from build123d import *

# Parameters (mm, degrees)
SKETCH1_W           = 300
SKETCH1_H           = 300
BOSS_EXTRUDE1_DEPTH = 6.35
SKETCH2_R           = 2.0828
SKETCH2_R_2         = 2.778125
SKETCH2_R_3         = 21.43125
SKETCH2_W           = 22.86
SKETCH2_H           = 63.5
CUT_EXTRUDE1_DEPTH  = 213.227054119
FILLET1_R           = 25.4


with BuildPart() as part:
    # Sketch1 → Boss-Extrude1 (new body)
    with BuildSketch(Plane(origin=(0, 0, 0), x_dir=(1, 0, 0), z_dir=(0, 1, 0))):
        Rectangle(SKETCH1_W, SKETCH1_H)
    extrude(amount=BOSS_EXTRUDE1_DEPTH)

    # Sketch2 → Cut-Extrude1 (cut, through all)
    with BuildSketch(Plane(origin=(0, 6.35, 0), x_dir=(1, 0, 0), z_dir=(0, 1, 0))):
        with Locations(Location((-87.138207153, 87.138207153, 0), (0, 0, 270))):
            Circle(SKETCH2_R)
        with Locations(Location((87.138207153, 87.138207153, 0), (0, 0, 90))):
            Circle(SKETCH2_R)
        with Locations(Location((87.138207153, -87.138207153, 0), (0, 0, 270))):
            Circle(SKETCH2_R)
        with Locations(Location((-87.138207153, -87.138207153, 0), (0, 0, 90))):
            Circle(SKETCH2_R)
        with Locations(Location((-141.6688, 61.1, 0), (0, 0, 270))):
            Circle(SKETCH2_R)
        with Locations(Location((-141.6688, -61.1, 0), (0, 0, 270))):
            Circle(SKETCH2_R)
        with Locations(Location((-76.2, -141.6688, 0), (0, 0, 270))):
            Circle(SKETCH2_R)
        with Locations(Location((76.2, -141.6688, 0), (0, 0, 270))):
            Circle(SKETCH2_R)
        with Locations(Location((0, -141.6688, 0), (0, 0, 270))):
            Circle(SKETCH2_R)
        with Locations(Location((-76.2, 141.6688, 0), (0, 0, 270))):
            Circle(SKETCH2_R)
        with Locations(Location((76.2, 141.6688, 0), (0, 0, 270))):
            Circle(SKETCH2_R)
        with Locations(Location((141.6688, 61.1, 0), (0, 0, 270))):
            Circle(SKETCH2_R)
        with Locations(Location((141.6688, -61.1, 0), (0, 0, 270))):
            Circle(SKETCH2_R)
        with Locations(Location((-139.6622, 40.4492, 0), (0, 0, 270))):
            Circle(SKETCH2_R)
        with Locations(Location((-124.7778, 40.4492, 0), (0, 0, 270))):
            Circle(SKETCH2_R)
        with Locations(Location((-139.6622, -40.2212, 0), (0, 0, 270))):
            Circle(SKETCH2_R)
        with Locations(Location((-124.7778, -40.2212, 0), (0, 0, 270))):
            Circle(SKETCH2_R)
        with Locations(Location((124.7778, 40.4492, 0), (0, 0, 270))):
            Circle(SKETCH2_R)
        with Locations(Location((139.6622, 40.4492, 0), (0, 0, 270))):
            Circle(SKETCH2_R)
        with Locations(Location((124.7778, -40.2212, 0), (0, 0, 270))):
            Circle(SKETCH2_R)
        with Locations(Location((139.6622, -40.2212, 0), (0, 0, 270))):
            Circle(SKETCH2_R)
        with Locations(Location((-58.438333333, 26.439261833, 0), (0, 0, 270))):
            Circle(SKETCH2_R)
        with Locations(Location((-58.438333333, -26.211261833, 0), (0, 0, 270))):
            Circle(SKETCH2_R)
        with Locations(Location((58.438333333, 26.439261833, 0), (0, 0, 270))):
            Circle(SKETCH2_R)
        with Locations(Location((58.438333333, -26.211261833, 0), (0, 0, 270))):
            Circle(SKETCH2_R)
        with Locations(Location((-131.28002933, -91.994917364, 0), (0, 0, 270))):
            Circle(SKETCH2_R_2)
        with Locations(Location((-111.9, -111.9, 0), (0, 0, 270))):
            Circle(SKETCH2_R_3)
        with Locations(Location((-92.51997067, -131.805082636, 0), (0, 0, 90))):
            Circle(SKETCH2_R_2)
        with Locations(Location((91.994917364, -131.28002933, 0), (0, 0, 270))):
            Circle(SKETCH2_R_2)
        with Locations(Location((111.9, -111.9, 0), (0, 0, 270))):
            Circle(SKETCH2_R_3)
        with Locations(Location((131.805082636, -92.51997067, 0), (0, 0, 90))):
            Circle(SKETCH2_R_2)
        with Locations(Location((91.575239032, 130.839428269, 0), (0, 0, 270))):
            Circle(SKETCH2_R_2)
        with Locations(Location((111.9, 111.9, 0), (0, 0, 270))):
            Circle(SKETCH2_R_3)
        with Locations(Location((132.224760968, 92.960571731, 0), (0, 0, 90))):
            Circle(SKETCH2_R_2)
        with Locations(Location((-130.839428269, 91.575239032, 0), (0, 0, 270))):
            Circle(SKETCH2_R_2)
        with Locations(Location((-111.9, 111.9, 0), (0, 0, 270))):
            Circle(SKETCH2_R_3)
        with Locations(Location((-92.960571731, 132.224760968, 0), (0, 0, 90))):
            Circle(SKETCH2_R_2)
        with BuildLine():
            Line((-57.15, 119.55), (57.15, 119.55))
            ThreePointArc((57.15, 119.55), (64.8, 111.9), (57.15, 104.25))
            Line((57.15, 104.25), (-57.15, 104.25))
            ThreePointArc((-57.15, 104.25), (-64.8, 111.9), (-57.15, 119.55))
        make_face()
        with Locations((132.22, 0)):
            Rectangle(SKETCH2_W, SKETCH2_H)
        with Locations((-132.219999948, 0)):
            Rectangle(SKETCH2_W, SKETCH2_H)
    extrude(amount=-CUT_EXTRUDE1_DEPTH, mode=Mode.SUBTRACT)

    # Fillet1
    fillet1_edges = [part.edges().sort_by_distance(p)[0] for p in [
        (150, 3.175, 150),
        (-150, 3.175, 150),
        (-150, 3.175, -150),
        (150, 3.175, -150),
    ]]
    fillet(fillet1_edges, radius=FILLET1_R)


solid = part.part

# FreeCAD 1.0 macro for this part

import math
import FreeCAD as App
import Part
import Sketcher

V = App.Vector
Q = App.Units.Quantity


def edges_at(feature, points):
    """Names of the edges that pass closest to the given points."""
    edges = feature.Shape.Edges
    near = lambda p: min(range(len(edges)), key=lambda i: edges[i].distToShape(Part.Vertex(*p))[0])
    return sorted({f"Edge{near(p) + 1}" for p in points})


def add_polygon(sketch, points):
    """Adds a closed chain of lines whose ends are joined by coincident constraints."""
    first, n = sketch.GeometryCount, len(points)
    for a, b in zip(points, points[1:] + points[:1]):
        sketch.addGeometry(Part.LineSegment(App.Vector(*a, 0), App.Vector(*b, 0)), False)
    for i in range(n):
        sketch.addConstraint(Sketcher.Constraint("Coincident", first + i, 2, first + (i + 1) % n, 1))

doc = App.newDocument("Part")
body = doc.addObject("PartDesign::Body", "Body")

# Sketch on XZ plane
sketch1 = doc.addObject("Sketcher::SketchObject", "Sketch")
body.addObject(sketch1)
sketch1.AttachmentSupport = (doc.XZ_Plane, [""])
sketch1.MapMode = "FlatFace"
add_polygon(sketch1, [(-150, -150), (-150, 150), (150, 150), (150, -150)])  # lines 0-3
sketch1.addConstraint([
    Sketcher.Constraint("Vertical", 0),
    Sketcher.Constraint("Horizontal", 1),
    Sketcher.Constraint("Vertical", 2),
    Sketcher.Constraint("Horizontal", 3),
    Sketcher.Constraint("Symmetric", 0, 2, 2, 2, -1, 1),
    Sketcher.Constraint("Equal", 3, 0),
    Sketcher.Constraint("DistanceX", 1, 1, 1, 2, Q("300 mm")),
])
pad1 = doc.addObject("PartDesign::Pad", "Pad")
body.addObject(pad1)
pad1.Profile = sketch1
pad1.Length = Q("0.25 in")
pad1.Reversed = True

# Sketch on XZ plane
sketch2 = doc.addObject("Sketcher::SketchObject", "Sketch001")
body.addObject(sketch2)
sketch2.AttachmentSupport = (doc.XZ_Plane, [""])
sketch2.MapMode = "FlatFace"
sketch2.AttachmentOffset = App.Placement(V(0, 0, -0.25 * 25.4), App.Rotation())
sketch2.addGeometry(Part.Circle(V(-87.1, -87.1, 0), V(0, 0, 1), 2.1), False)  # 0
sketch2.addGeometry(Part.Circle(V(87.1, -87.1, 0), V(0, 0, 1), 2.1), False)  # 1
sketch2.addGeometry(Part.Circle(V(87.1, 87.1, 0), V(0, 0, 1), 2.1), False)  # 2
sketch2.addGeometry(Part.Circle(V(-87.1, 87.1, 0), V(0, 0, 1), 2.1), False)  # 3
sketch2.addGeometry(Part.Circle(V(-141.7, -61.1, 0), V(0, 0, 1), 2.1), False)  # 4
sketch2.addGeometry(Part.Circle(V(-141.7, 61.1, 0), V(0, 0, 1), 2.1), False)  # 5
sketch2.addGeometry(Part.Circle(V(-76.2, 141.7, 0), V(0, 0, 1), 2.1), False)  # 6
sketch2.addGeometry(Part.Circle(V(76.2, 141.7, 0), V(0, 0, 1), 2.1), False)  # 7
sketch2.addGeometry(Part.Circle(V(0, 141.7, 0), V(0, 0, 1), 2.1), False)  # 8
sketch2.addGeometry(Part.Circle(V(-76.2, -141.7, 0), V(0, 0, 1), 2.1), False)  # 9
sketch2.addGeometry(Part.Circle(V(76.2, -141.7, 0), V(0, 0, 1), 2.1), False)  # 10
sketch2.addGeometry(Part.Circle(V(141.7, -61.1, 0), V(0, 0, 1), 2.1), False)  # 11
sketch2.addGeometry(Part.Circle(V(141.7, 61.1, 0), V(0, 0, 1), 2.1), False)  # 12
sketch2.addGeometry(Part.Circle(V(-139.7, -40.4, 0), V(0, 0, 1), 2.1), False)  # 13
sketch2.addGeometry(Part.Circle(V(-124.8, -40.4, 0), V(0, 0, 1), 2.1), False)  # 14
sketch2.addGeometry(Part.Circle(V(-139.7, 40.2, 0), V(0, 0, 1), 2.1), False)  # 15
sketch2.addGeometry(Part.Circle(V(-124.8, 40.2, 0), V(0, 0, 1), 2.1), False)  # 16
sketch2.addGeometry(Part.Circle(V(124.8, -40.4, 0), V(0, 0, 1), 2.1), False)  # 17
sketch2.addGeometry(Part.Circle(V(139.7, -40.4, 0), V(0, 0, 1), 2.1), False)  # 18
sketch2.addGeometry(Part.Circle(V(124.8, 40.2, 0), V(0, 0, 1), 2.1), False)  # 19
sketch2.addGeometry(Part.Circle(V(139.7, 40.2, 0), V(0, 0, 1), 2.1), False)  # 20
sketch2.addGeometry(Part.Circle(V(-58.4, -26.4, 0), V(0, 0, 1), 2.1), False)  # 21
sketch2.addGeometry(Part.Circle(V(-58.4, 26.2, 0), V(0, 0, 1), 2.1), False)  # 22
sketch2.addGeometry(Part.Circle(V(58.4, -26.4, 0), V(0, 0, 1), 2.1), False)  # 23
sketch2.addGeometry(Part.Circle(V(58.4, 26.2, 0), V(0, 0, 1), 2.1), False)  # 24
sketch2.addGeometry(Part.Circle(V(-131.3, 92, 0), V(0, 0, 1), 2.8), False)  # 25
sketch2.addGeometry(Part.Circle(V(-111.9, 111.9, 0), V(0, 0, 1), 21.4), False)  # 26
sketch2.addGeometry(Part.Circle(V(-92.5, 131.8, 0), V(0, 0, 1), 2.8), False)  # 27
sketch2.addGeometry(Part.Circle(V(92, 131.3, 0), V(0, 0, 1), 2.8), False)  # 28
sketch2.addGeometry(Part.Circle(V(111.9, 111.9, 0), V(0, 0, 1), 21.4), False)  # 29
sketch2.addGeometry(Part.Circle(V(131.8, 92.5, 0), V(0, 0, 1), 2.8), False)  # 30
sketch2.addGeometry(Part.Circle(V(91.6, -130.8, 0), V(0, 0, 1), 2.8), False)  # 31
sketch2.addGeometry(Part.Circle(V(111.9, -111.9, 0), V(0, 0, 1), 21.4), False)  # 32
sketch2.addGeometry(Part.Circle(V(132.2, -93, 0), V(0, 0, 1), 2.8), False)  # 33
sketch2.addGeometry(Part.Circle(V(-130.8, -91.6, 0), V(0, 0, 1), 2.8), False)  # 34
sketch2.addGeometry(Part.Circle(V(-111.9, -111.9, 0), V(0, 0, 1), 21.4), False)  # 35
sketch2.addGeometry(Part.Circle(V(-93, -132.2, 0), V(0, 0, 1), 2.8), False)  # 36
sketch2.addGeometry(Part.LineSegment(V(57.1, -119.5, 0), V(-57.1, -119.5, 0)), False)  # 37
sketch2.addGeometry(Part.ArcOfCircle(Part.Circle(V(-57.1, -111.9, 0), V(0, 0, 1), 7.7), math.radians(90), math.radians(270)), False)  # 38
sketch2.addGeometry(Part.LineSegment(V(-57.1, -104.2, 0), V(57.1, -104.2, 0)), False)  # 39
sketch2.addGeometry(Part.ArcOfCircle(Part.Circle(V(57.1, -111.9, 0), V(0, 0, 1), 7.7), math.radians(-90), math.radians(90)), False)  # 40
add_polygon(sketch2, [(120.8, -31.8), (120.8, 31.8), (143.7, 31.8), (143.7, -31.8)])  # lines 41-44
add_polygon(sketch2, [(-143.6, -31.8), (-143.6, 31.8), (-120.8, 31.8), (-120.8, -31.8)])  # lines 45-48
sketch2.addConstraint([
    Sketcher.Constraint("Tangent", 37, 2, 38, 2),
    Sketcher.Constraint("Tangent", 38, 1, 39, 1),
    Sketcher.Constraint("Tangent", 39, 2, 40, 2),
    Sketcher.Constraint("Tangent", 40, 1, 37, 1),
    Sketcher.Constraint("Horizontal", 37),
    Sketcher.Constraint("Horizontal", 39),
    Sketcher.Constraint("Vertical", 41),
    Sketcher.Constraint("Horizontal", 42),
    Sketcher.Constraint("Vertical", 43),
    Sketcher.Constraint("Horizontal", 44),
    Sketcher.Constraint("Vertical", 45),
    Sketcher.Constraint("Horizontal", 46),
    Sketcher.Constraint("Vertical", 47),
    Sketcher.Constraint("Horizontal", 48),
    Sketcher.Constraint("Equal", 0, 1),
    Sketcher.Constraint("Equal", 1, 2),
    Sketcher.Constraint("Equal", 2, 3),
    Sketcher.Constraint("Equal", 3, 4),
    Sketcher.Constraint("Equal", 4, 5),
    Sketcher.Constraint("Equal", 5, 6),
    Sketcher.Constraint("Equal", 6, 7),
    Sketcher.Constraint("Equal", 7, 8),
    Sketcher.Constraint("Equal", 8, 9),
    Sketcher.Constraint("Equal", 9, 10),
    Sketcher.Constraint("Equal", 10, 11),
    Sketcher.Constraint("Equal", 11, 12),
    Sketcher.Constraint("Equal", 12, 13),
    Sketcher.Constraint("Equal", 13, 14),
    Sketcher.Constraint("Equal", 14, 15),
    Sketcher.Constraint("Equal", 15, 16),
    Sketcher.Constraint("Equal", 16, 17),
    Sketcher.Constraint("Equal", 17, 18),
    Sketcher.Constraint("Equal", 18, 19),
    Sketcher.Constraint("Equal", 19, 20),
    Sketcher.Constraint("Equal", 20, 21),
    Sketcher.Constraint("Equal", 21, 22),
    Sketcher.Constraint("Equal", 22, 23),
    Sketcher.Constraint("Equal", 23, 24),
    Sketcher.Constraint("Equal", 25, 27),
    Sketcher.Constraint("Equal", 27, 28),
    Sketcher.Constraint("Equal", 26, 29),
    Sketcher.Constraint("Equal", 28, 30),
    Sketcher.Constraint("Equal", 30, 31),
    Sketcher.Constraint("Equal", 29, 32),
    Sketcher.Constraint("Equal", 31, 33),
    Sketcher.Constraint("Equal", 33, 34),
    Sketcher.Constraint("Equal", 32, 35),
    Sketcher.Constraint("Equal", 34, 36),
    Sketcher.Constraint("Symmetric", 0, 3, 2, 3, -1, 1),
    Sketcher.Constraint("Symmetric", 1, 3, 3, 3, -1, 1),
    Sketcher.Constraint("Symmetric", 7, 3, 9, 3, -1, 1),
    Sketcher.Constraint("Symmetric", 6, 3, 10, 3, -1, 1),
    Sketcher.Constraint("Symmetric", 5, 3, 11, 3, -1, 1),
    Sketcher.Constraint("Symmetric", 4, 3, 12, 3, -1, 1),
    Sketcher.Constraint("Symmetric", 26, 3, 32, 3, -1, 1),
    Sketcher.Constraint("Symmetric", 29, 3, 35, 3, -1, 1),
    Sketcher.Constraint("Symmetric", 43, 2, 45, 2, -1, 1),
    Sketcher.Constraint("Symmetric", 41, 2, 47, 2, -1, 1),
    Sketcher.Constraint("Symmetric", 0, 3, 1, 3, -2),
    Sketcher.Constraint("Symmetric", 6, 3, 7, 3, -2),
    Sketcher.Constraint("Symmetric", 4, 3, 11, 3, -2),
    Sketcher.Constraint("Symmetric", 14, 3, 17, 3, -2),
    Sketcher.Constraint("Symmetric", 13, 3, 18, 3, -2),
    Sketcher.Constraint("Symmetric", 16, 3, 19, 3, -2),
    Sketcher.Constraint("Symmetric", 15, 3, 20, 3, -2),
    Sketcher.Constraint("Symmetric", 21, 3, 23, 3, -2),
    Sketcher.Constraint("Symmetric", 22, 3, 24, 3, -2),
    Sketcher.Constraint("Symmetric", 26, 3, 29, 3, -2),
    Sketcher.Constraint("PointOnObject", 8, 3, -2),
    Sketcher.Constraint("Horizontal", 7, 3, 8, 3),
    Sketcher.Constraint("Horizontal", 13, 3, 14, 3),
    Sketcher.Constraint("Horizontal", 15, 3, 16, 3),
    Sketcher.Constraint("Horizontal", 35, 3, 38, 3),
    Sketcher.Constraint("Horizontal", 42, 2, 45, 2),
    Sketcher.Constraint("Vertical", 13, 3, 15, 3),
    Sketcher.Constraint("Vertical", 14, 3, 16, 3),
    Sketcher.Constraint("Vertical", 21, 3, 22, 3),
    Sketcher.Constraint("Diameter", 0, Q("0.164 in")),
    Sketcher.Constraint("Diameter", 25, Q("0.21875 in")),
    Sketcher.Constraint("Diameter", 26, Q("1.6875 in")),
    Sketcher.Constraint("DistanceX", 37, 2, 37, 1, Q("4.5 in")),
    Sketcher.Constraint("DistanceX", 42, 1, 42, 2, Q("0.9 in")),
    Sketcher.Constraint("DistanceY", 41, 1, 41, 2, Q("2.5 in")),
    Sketcher.Constraint("DistanceX", 6, 3, -1, 1, Q("3 in")),
    Sketcher.Constraint("DistanceY", 5, 3, 26, 3, Q("2 in")),
    Sketcher.Constraint("DistanceX", 38, 3, -1, 1, Q("2.25 in")),
    Sketcher.Constraint("Radius", 38, Q("7.65 mm")),
    Sketcher.Constraint("DistanceY", 5, 3, 6, 3, Q("3.172 in")),
    Sketcher.Constraint("DistanceX", 4, 3, 13, 3, Q("0.079 in")),
    Sketcher.Constraint("DistanceY", 13, 3, 5, 3, Q("3.998 in")),
    Sketcher.Constraint("DistanceX", 13, 3, 14, 3, Q("0.586 in")),
    Sketcher.Constraint("DistanceY", 15, 3, 5, 3, Q("0.822 in")),
    Sketcher.Constraint("DistanceX", 5, 3, 26, 3, Q("1.172 in")),
    Sketcher.Constraint("DistanceX", 41, 2, 19, 3, Q("0.157 in")),
    Sketcher.Constraint("DistanceX", 4, 3, -1, 1, Q("141.6688 mm")),
    Sketcher.Constraint("DistanceY", 4, 3, -1, 1, Q("61.1 mm")),
    Sketcher.Constraint("DistanceY", 21, 3, -1, 1, Q("26.439262 mm")),
    Sketcher.Constraint("DistanceY", -1, 1, 22, 3, Q("26.211262 mm")),
    Sketcher.Constraint("DistanceX", 25, 3, -1, 1, Q("131.280029 mm")),
    Sketcher.Constraint("DistanceX", 27, 3, -1, 1, Q("92.519971 mm")),
    Sketcher.Constraint("DistanceY", -1, 1, 28, 3, Q("131.280029 mm")),
    Sketcher.Constraint("DistanceY", -1, 1, 30, 3, Q("92.519971 mm")),
    Sketcher.Constraint("DistanceX", -1, 1, 31, 3, Q("91.575239 mm")),
    Sketcher.Constraint("DistanceY", 31, 3, -1, 1, Q("130.839428 mm")),
    Sketcher.Constraint("DistanceX", -1, 1, 33, 3, Q("132.224761 mm")),
    Sketcher.Constraint("DistanceY", 33, 3, -1, 1, Q("92.960572 mm")),
    Sketcher.Constraint("DistanceX", 34, 3, -1, 1, Q("130.839428 mm")),
    Sketcher.Constraint("DistanceY", 34, 3, -1, 1, Q("91.575239 mm")),
    Sketcher.Constraint("DistanceX", 36, 3, -1, 1, Q("92.960572 mm")),
    Sketcher.Constraint("DistanceY", 36, 3, -1, 1, Q("132.224761 mm")),
    Sketcher.Constraint("DistanceY", 3, 3, 25, 3, Q("4.85671 mm")),
    Sketcher.Constraint("DistanceX", 2, 3, 28, 3, Q("4.85671 mm")),
    Sketcher.Constraint("DistanceX", 1, 3, 31, 3, Q("4.437032 mm")),
    Sketcher.Constraint("DistanceY", 31, 3, 1, 3, Q("43.701221 mm")),
    Sketcher.Constraint("DistanceX", 21, 3, -1, 1, Q("58.438333 mm")),
    Sketcher.Constraint("DistanceY", -1, 1, 27, 3, Q("131.805083 mm")),
    Sketcher.Constraint("DistanceX", -1, 1, 30, 3, Q("131.805083 mm")),
])
pocket1 = doc.addObject("PartDesign::Pocket", "Pocket")
body.addObject(pocket1)
pocket1.Profile = sketch2
pocket1.Type = "ThroughAll"
pocket1.Reversed = True
doc.recompute()

fillet = doc.addObject("PartDesign::Fillet", "Fillet")
body.addObject(fillet)
fillet.Base = (pocket1, edges_at(pocket1, [
    (150, 3.175, 150),
    (-150, 3.175, 150),
    (-150, 3.175, -150),
    (150, 3.175, -150),
]))
fillet.Radius = Q("1 in")

doc.recompute()
